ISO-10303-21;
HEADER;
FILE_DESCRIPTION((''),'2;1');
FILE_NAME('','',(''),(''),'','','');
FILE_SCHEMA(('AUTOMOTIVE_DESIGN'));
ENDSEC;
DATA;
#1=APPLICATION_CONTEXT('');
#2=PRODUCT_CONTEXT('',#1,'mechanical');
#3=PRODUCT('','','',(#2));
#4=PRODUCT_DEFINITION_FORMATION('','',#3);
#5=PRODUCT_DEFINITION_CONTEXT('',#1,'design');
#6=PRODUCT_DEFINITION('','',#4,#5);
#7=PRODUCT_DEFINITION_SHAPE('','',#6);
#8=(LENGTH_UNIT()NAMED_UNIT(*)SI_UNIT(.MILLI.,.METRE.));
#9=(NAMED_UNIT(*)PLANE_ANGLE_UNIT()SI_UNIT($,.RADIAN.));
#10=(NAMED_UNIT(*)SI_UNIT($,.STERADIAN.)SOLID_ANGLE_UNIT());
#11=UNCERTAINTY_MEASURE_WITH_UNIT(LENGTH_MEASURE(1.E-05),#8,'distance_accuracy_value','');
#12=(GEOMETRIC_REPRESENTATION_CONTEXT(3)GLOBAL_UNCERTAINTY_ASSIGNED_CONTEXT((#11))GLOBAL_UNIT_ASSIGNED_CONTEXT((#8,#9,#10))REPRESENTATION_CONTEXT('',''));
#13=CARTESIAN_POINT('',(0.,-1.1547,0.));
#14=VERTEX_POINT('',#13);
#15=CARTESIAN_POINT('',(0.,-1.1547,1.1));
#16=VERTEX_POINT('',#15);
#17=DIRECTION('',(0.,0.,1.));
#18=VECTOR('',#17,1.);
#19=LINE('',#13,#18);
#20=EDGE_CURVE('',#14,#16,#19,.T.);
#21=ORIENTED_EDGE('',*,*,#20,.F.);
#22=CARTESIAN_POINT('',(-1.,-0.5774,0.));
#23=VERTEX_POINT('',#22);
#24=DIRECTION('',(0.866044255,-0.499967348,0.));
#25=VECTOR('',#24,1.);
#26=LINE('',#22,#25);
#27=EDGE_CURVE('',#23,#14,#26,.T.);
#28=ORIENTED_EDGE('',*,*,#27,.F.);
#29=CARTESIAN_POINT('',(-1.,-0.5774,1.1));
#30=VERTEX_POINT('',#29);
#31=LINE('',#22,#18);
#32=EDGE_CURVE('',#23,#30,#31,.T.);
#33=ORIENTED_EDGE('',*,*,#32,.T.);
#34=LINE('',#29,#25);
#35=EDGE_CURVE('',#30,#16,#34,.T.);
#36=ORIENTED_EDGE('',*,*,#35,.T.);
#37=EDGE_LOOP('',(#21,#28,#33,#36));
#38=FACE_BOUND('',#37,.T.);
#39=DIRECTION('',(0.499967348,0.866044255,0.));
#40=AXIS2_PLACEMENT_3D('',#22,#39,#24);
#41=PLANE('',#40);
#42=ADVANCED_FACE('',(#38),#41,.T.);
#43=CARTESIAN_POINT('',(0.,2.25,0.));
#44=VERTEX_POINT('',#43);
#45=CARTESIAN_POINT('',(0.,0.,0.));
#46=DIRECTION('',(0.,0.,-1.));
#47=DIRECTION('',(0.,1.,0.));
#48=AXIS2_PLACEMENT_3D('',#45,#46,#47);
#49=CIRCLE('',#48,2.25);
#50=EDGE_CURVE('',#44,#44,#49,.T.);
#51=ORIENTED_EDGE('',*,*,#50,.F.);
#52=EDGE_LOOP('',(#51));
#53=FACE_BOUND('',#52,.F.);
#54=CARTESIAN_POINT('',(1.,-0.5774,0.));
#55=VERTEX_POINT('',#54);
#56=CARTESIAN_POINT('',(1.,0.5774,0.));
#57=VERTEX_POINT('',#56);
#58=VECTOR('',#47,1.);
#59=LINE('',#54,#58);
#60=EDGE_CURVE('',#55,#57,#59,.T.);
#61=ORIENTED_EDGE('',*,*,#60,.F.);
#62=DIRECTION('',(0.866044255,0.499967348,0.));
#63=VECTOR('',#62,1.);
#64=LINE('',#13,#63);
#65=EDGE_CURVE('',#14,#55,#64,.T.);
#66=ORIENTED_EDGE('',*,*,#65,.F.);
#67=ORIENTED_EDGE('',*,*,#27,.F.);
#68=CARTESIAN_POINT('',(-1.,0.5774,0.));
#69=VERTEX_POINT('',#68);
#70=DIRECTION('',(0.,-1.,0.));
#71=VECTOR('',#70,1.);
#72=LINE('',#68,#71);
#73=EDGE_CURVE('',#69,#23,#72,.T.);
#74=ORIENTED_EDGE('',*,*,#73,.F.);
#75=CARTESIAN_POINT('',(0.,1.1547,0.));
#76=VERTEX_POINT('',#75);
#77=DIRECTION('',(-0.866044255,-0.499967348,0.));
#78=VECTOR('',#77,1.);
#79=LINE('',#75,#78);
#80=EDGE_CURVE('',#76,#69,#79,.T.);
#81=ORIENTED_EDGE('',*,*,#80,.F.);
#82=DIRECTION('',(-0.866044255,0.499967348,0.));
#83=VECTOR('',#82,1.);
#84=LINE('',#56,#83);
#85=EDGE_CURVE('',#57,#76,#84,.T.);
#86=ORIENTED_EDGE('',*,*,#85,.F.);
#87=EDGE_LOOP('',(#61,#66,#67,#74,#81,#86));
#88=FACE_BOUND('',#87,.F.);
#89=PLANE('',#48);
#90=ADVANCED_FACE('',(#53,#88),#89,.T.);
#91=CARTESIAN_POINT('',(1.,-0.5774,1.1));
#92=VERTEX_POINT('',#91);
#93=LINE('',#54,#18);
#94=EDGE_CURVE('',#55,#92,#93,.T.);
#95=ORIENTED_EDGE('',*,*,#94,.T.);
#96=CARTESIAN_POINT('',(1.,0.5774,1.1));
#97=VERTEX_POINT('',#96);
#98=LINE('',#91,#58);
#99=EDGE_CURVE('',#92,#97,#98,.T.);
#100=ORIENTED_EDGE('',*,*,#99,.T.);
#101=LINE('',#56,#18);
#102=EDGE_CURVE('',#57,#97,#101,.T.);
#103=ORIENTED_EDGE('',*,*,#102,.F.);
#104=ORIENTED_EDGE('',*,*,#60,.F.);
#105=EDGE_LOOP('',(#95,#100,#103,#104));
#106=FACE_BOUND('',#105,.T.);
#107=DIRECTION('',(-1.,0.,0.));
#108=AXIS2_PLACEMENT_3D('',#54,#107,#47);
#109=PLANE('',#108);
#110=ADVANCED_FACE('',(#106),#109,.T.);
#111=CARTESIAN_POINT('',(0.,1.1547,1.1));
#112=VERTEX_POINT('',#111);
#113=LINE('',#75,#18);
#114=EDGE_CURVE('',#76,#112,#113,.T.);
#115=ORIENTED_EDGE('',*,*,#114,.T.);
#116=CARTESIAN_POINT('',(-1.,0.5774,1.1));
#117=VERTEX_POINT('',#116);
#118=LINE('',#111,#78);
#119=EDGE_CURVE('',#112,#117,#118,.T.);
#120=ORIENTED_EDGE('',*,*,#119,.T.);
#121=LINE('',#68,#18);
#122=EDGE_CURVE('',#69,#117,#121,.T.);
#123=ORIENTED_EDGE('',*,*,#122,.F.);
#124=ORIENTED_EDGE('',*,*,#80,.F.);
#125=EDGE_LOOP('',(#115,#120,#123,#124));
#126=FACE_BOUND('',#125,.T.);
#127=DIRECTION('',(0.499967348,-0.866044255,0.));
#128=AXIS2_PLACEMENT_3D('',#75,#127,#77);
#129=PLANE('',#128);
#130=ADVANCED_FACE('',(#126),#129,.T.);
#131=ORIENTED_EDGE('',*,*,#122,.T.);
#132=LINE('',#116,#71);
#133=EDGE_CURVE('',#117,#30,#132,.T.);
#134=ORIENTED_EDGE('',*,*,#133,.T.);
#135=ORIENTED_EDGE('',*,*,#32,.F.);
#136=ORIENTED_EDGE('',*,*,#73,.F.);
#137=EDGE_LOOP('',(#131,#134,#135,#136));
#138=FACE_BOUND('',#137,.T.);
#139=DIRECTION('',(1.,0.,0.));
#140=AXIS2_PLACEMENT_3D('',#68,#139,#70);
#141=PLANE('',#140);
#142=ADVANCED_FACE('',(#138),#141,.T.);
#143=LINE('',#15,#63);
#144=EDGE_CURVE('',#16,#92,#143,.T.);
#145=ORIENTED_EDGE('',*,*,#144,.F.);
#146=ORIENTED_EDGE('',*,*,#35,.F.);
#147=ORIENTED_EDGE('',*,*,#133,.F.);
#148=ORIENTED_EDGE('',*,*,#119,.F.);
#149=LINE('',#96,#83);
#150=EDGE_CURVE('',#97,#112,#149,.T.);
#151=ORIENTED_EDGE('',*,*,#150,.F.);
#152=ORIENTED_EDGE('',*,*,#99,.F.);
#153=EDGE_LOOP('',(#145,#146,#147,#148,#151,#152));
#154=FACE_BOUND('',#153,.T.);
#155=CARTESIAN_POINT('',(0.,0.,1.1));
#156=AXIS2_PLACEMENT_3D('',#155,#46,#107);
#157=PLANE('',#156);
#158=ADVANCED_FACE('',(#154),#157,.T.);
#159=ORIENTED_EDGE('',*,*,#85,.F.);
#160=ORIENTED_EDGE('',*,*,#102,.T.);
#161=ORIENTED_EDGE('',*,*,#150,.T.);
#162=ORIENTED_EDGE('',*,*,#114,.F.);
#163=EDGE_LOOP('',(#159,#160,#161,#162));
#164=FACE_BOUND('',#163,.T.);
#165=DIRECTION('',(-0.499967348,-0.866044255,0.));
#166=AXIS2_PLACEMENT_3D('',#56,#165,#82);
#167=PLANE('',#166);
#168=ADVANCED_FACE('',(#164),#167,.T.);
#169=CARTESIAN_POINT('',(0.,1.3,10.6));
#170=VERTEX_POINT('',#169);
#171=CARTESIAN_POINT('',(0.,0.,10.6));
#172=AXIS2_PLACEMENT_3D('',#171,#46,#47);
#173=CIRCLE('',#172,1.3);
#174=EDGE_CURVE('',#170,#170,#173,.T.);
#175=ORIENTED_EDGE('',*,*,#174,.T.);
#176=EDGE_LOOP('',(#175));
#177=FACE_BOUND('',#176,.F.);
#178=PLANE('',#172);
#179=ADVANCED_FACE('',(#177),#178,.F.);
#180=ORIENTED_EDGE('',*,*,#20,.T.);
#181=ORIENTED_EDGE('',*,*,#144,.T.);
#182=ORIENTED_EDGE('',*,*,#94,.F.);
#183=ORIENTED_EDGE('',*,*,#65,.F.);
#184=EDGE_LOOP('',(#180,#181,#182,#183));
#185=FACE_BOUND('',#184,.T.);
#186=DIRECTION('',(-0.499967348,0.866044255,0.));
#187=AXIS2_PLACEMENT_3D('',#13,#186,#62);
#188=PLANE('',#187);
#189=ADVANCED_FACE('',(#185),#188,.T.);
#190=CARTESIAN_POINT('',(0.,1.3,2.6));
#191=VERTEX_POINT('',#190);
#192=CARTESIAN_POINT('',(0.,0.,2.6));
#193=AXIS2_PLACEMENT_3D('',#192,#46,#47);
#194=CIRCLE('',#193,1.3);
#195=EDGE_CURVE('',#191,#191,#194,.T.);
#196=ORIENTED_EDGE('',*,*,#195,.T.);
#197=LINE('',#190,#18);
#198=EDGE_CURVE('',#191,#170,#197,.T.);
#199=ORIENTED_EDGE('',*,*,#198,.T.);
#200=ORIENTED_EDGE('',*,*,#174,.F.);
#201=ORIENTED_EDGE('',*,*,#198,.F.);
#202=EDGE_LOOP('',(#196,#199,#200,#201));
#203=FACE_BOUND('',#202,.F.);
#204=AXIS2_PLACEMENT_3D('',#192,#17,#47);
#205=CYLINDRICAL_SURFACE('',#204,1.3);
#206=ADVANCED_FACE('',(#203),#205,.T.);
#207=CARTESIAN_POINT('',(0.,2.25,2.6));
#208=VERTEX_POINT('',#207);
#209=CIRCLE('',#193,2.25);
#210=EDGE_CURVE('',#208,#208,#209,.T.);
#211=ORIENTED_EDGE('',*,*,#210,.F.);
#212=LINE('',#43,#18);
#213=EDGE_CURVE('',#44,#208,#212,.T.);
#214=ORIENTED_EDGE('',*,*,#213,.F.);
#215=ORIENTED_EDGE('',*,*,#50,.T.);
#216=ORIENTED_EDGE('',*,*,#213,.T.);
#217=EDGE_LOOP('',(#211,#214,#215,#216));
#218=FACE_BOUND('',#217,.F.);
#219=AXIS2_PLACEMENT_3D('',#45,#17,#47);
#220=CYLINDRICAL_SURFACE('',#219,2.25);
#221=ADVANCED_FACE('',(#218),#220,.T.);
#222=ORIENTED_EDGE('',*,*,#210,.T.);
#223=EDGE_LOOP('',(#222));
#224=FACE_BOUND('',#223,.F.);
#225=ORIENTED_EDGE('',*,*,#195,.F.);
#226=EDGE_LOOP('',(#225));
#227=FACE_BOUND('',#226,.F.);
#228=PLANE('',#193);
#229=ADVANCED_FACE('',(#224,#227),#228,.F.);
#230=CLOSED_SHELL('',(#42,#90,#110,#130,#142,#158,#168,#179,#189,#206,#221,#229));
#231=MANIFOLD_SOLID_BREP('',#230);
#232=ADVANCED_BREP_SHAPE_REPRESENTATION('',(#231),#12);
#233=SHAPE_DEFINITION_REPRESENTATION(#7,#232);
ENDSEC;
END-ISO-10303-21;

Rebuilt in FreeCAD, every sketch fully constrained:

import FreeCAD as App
import Part
import Sketcher

V = App.Vector
Q = App.Units.Quantity

doc = App.newDocument("Part")
body = doc.addObject("PartDesign::Body", "Body")

# Sketch on YZ plane
sketch1 = body.newObject("Sketcher::SketchObject", "Sketch")
sketch1.AttachmentSupport = (doc.getObject("YZ_Plane"), [""])
sketch1.MapMode = "FlatFace"
sketch1.addGeometry(Part.LineSegment(V(1.3, 10.6, 0), V(0, 10.6, 0)), False)
sketch1.addGeometry(Part.LineSegment(V(0, 10.6, 0), V(0, 0, 0)), False)
sketch1.addGeometry(Part.LineSegment(V(0, 0, 0), V(2.2, 0, 0)), False)
sketch1.addGeometry(Part.LineSegment(V(2.2, 0, 0), V(2.2, 2.6, 0)), False)
sketch1.addGeometry(Part.LineSegment(V(2.2, 2.6, 0), V(1.3, 2.6, 0)), False)
sketch1.addGeometry(Part.LineSegment(V(1.3, 2.6, 0), V(1.3, 10.6, 0)), False)
sketch1.addConstraint(Sketcher.Constraint("Coincident", 0, 2, 1, 1))
sketch1.addConstraint(Sketcher.Constraint("Coincident", 1, 2, 2, 1))
sketch1.addConstraint(Sketcher.Constraint("Coincident", 2, 2, 3, 1))
sketch1.addConstraint(Sketcher.Constraint("Coincident", 3, 2, 4, 1))
sketch1.addConstraint(Sketcher.Constraint("Coincident", 4, 2, 5, 1))
sketch1.addConstraint(Sketcher.Constraint("Coincident", 5, 2, 0, 1))
sketch1.addConstraint(Sketcher.Constraint("Horizontal", 0))
sketch1.addConstraint(Sketcher.Constraint("Vertical", 1))
sketch1.addConstraint(Sketcher.Constraint("Horizontal", 2))
sketch1.addConstraint(Sketcher.Constraint("Vertical", 3))
sketch1.addConstraint(Sketcher.Constraint("Horizontal", 4))
sketch1.addConstraint(Sketcher.Constraint("Vertical", 5))
sketch1.addConstraint(Sketcher.Constraint("Coincident", 1, 2, -1, 1))
sketch1.addConstraint(Sketcher.Constraint("DistanceY", 5, 1, 5, 2, Q("8 mm")))
sketch1.addConstraint(Sketcher.Constraint("DistanceY", 3, 1, 3, 2, Q("2.6 mm")))
sketch1.addConstraint(Sketcher.Constraint("DistanceX", 0, 2, 0, 1, Q("1.3 mm")))
sketch1.addConstraint(Sketcher.Constraint("DistanceX", 2, 1, 2, 2, Q("2.25 mm")))
revolution = body.newObject("PartDesign::Revolution", "Revolution")
revolution.Profile = sketch1
revolution.ReferenceAxis = (sketch1, ["V_Axis"])
revolution.Angle = 360

# Sketch on XY plane
sketch2 = body.newObject("Sketcher::SketchObject", "Sketch001")
sketch2.AttachmentSupport = (doc.getObject("XY_Plane"), [""])
sketch2.MapMode = "FlatFace"
sketch2.addGeometry(Part.LineSegment(V(-1, 0.6, 0), V(0, 1.2, 0)), False)
sketch2.addGeometry(Part.LineSegment(V(0, 1.2, 0), V(1, 0.6, 0)), False)
sketch2.addGeometry(Part.LineSegment(V(1, 0.6, 0), V(1, -0.6, 0)), False)
sketch2.addGeometry(Part.LineSegment(V(1, -0.6, 0), V(0, -1.2, 0)), False)
sketch2.addGeometry(Part.LineSegment(V(0, -1.2, 0), V(-1, -0.6, 0)), False)
sketch2.addGeometry(Part.LineSegment(V(-1, -0.6, 0), V(-1, 0.6, 0)), False)
sketch2.addConstraint(Sketcher.Constraint("Coincident", 0, 2, 1, 1))
sketch2.addConstraint(Sketcher.Constraint("Coincident", 1, 2, 2, 1))
sketch2.addConstraint(Sketcher.Constraint("Coincident", 2, 2, 3, 1))
sketch2.addConstraint(Sketcher.Constraint("Coincident", 3, 2, 4, 1))
sketch2.addConstraint(Sketcher.Constraint("Coincident", 4, 2, 5, 1))
sketch2.addConstraint(Sketcher.Constraint("Coincident", 5, 2, 0, 1))
sketch2.addConstraint(Sketcher.Constraint("Vertical", 2))
sketch2.addConstraint(Sketcher.Constraint("Vertical", 5))
sketch2.addConstraint(Sketcher.Constraint("Symmetric", 0, 2, 3, 2, -1, 1))
sketch2.addConstraint(Sketcher.Constraint("Symmetric", 1, 2, 4, 2, -1, 1))
sketch2.addConstraint(Sketcher.Constraint("PointOnObject", 0, 2, -2))
sketch2.addConstraint(Sketcher.Constraint("Parallel", 0, 3))
sketch2.addConstraint(Sketcher.Constraint("Horizontal", 2, 2, 4, 2))
sketch2.addConstraint(Sketcher.Constraint("DistanceX", 4, 2, 2, 2, Q("2 mm")))
sketch2.addConstraint(Sketcher.Constraint("DistanceY", 2, 2, 2, 1, Q("1.1548 mm")))
sketch2.addConstraint(Sketcher.Constraint("DistanceY", 2, 2, 0, 2, Q("1.732 mm")))
pocket1 = body.newObject("PartDesign::Pocket", "Pocket")
pocket1.Profile = sketch2
pocket1.Length = 1.1
pocket1.Reversed = True

doc.recompute()
